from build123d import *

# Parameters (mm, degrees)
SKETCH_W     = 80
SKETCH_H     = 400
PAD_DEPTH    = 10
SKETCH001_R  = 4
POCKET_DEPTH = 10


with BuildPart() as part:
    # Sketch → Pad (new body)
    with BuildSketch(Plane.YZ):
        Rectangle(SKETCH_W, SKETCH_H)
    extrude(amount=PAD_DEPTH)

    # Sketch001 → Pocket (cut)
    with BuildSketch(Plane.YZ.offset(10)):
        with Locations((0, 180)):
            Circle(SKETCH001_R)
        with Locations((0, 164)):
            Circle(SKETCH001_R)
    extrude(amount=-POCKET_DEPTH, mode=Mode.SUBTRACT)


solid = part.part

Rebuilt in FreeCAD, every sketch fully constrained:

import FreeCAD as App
import Part
import Sketcher


def add_polygon(sketch, points):
    """Adds a closed chain of lines whose ends are joined by coincident constraints."""
    first, n = sketch.GeometryCount, len(points)
    for a, b in zip(points, points[1:] + points[:1]):
        sketch.addGeometry(Part.LineSegment(App.Vector(*a, 0), App.Vector(*b, 0)), False)
    for i in range(n):
        sketch.addConstraint(Sketcher.Constraint("Coincident", first + i, 2, first + (i + 1) % n, 1))

doc = App.newDocument("Part")
params = doc.addObject("Spreadsheet::Sheet", "Params")
for row, (alias, value) in enumerate([
    ("sketch1_width", "80 mm"),
    ("sketch1_height", "400 mm"),
    ("pad1_length", "10 mm"),
    ("sketch2_diameter", "8 mm"),
    ("pocket1_length", "10 mm"),
], start=1):
    params.set(f"A{row}", alias)
    params.set(f"B{row}", "=" + value)
    params.setAlias(f"B{row}", alias)

body = doc.addObject("PartDesign::Body", "Body")

# Sketch on YZ plane
sketch1 = body.newObject("Sketcher::SketchObject", "Sketch")
sketch1.AttachmentSupport = (doc.getObject("YZ_Plane"), [""])
sketch1.MapMode = "FlatFace"
add_polygon(sketch1, [(-40, 200), (-40, -200), (40, -200), (40, 200)])  # lines 0-3
sketch1.addConstraint([
    Sketcher.Constraint("Vertical", 0),
    Sketcher.Constraint("Horizontal", 1),
    Sketcher.Constraint("Vertical", 2),
    Sketcher.Constraint("Horizontal", 3),
    Sketcher.Constraint("Symmetric", 0, 2, 2, 2, -1, 1),
    Sketcher.Constraint("DistanceX", 1, 1, 1, 2, 80.0),
    Sketcher.Constraint("DistanceY", 0, 2, 0, 1, 400.0),
])
sketch1.setExpression("Constraints[9]", "Params.sketch1_width")
sketch1.setExpression("Constraints[10]", "Params.sketch1_height")
pad1 = body.newObject("PartDesign::Pad", "Pad")
pad1.Profile = sketch1
pad1.setExpression("Length", "Params.pad1_length")

# Sketch on YZ plane
sketch2 = body.newObject("Sketcher::SketchObject", "Sketch001")
sketch2.AttachmentSupport = (doc.getObject("YZ_Plane"), [""])
sketch2.MapMode = "FlatFace"
sketch2.AttachmentOffset = App.Placement(App.Vector(0, 0, 10), App.Rotation())
sketch2.addGeometry([
    Part.Circle(App.Vector(0, 180, 0), App.Vector(0, 0, 1), 4),
    Part.Circle(App.Vector(0, 164, 0), App.Vector(0, 0, 1), 4),
], False)
sketch2.addConstraint([
    Sketcher.Constraint("Equal", 0, 1),
    Sketcher.Constraint("PointOnObject", 0, 3, -2),
    Sketcher.Constraint("PointOnObject", 1, 3, -2),
    Sketcher.Constraint("Diameter", 0, 8.0),
    Sketcher.Constraint("DistanceY", -1, 1, 0, 3, 180.0),
    Sketcher.Constraint("DistanceY", -1, 1, 1, 3, 164.0),
])
sketch2.setExpression("Constraints[3]", "Params.sketch2_diameter")
pocket1 = body.newObject("PartDesign::Pocket", "Pocket")
pocket1.Profile = sketch2
pocket1.setExpression("Length", "Params.pocket1_length")

doc.recompute()
